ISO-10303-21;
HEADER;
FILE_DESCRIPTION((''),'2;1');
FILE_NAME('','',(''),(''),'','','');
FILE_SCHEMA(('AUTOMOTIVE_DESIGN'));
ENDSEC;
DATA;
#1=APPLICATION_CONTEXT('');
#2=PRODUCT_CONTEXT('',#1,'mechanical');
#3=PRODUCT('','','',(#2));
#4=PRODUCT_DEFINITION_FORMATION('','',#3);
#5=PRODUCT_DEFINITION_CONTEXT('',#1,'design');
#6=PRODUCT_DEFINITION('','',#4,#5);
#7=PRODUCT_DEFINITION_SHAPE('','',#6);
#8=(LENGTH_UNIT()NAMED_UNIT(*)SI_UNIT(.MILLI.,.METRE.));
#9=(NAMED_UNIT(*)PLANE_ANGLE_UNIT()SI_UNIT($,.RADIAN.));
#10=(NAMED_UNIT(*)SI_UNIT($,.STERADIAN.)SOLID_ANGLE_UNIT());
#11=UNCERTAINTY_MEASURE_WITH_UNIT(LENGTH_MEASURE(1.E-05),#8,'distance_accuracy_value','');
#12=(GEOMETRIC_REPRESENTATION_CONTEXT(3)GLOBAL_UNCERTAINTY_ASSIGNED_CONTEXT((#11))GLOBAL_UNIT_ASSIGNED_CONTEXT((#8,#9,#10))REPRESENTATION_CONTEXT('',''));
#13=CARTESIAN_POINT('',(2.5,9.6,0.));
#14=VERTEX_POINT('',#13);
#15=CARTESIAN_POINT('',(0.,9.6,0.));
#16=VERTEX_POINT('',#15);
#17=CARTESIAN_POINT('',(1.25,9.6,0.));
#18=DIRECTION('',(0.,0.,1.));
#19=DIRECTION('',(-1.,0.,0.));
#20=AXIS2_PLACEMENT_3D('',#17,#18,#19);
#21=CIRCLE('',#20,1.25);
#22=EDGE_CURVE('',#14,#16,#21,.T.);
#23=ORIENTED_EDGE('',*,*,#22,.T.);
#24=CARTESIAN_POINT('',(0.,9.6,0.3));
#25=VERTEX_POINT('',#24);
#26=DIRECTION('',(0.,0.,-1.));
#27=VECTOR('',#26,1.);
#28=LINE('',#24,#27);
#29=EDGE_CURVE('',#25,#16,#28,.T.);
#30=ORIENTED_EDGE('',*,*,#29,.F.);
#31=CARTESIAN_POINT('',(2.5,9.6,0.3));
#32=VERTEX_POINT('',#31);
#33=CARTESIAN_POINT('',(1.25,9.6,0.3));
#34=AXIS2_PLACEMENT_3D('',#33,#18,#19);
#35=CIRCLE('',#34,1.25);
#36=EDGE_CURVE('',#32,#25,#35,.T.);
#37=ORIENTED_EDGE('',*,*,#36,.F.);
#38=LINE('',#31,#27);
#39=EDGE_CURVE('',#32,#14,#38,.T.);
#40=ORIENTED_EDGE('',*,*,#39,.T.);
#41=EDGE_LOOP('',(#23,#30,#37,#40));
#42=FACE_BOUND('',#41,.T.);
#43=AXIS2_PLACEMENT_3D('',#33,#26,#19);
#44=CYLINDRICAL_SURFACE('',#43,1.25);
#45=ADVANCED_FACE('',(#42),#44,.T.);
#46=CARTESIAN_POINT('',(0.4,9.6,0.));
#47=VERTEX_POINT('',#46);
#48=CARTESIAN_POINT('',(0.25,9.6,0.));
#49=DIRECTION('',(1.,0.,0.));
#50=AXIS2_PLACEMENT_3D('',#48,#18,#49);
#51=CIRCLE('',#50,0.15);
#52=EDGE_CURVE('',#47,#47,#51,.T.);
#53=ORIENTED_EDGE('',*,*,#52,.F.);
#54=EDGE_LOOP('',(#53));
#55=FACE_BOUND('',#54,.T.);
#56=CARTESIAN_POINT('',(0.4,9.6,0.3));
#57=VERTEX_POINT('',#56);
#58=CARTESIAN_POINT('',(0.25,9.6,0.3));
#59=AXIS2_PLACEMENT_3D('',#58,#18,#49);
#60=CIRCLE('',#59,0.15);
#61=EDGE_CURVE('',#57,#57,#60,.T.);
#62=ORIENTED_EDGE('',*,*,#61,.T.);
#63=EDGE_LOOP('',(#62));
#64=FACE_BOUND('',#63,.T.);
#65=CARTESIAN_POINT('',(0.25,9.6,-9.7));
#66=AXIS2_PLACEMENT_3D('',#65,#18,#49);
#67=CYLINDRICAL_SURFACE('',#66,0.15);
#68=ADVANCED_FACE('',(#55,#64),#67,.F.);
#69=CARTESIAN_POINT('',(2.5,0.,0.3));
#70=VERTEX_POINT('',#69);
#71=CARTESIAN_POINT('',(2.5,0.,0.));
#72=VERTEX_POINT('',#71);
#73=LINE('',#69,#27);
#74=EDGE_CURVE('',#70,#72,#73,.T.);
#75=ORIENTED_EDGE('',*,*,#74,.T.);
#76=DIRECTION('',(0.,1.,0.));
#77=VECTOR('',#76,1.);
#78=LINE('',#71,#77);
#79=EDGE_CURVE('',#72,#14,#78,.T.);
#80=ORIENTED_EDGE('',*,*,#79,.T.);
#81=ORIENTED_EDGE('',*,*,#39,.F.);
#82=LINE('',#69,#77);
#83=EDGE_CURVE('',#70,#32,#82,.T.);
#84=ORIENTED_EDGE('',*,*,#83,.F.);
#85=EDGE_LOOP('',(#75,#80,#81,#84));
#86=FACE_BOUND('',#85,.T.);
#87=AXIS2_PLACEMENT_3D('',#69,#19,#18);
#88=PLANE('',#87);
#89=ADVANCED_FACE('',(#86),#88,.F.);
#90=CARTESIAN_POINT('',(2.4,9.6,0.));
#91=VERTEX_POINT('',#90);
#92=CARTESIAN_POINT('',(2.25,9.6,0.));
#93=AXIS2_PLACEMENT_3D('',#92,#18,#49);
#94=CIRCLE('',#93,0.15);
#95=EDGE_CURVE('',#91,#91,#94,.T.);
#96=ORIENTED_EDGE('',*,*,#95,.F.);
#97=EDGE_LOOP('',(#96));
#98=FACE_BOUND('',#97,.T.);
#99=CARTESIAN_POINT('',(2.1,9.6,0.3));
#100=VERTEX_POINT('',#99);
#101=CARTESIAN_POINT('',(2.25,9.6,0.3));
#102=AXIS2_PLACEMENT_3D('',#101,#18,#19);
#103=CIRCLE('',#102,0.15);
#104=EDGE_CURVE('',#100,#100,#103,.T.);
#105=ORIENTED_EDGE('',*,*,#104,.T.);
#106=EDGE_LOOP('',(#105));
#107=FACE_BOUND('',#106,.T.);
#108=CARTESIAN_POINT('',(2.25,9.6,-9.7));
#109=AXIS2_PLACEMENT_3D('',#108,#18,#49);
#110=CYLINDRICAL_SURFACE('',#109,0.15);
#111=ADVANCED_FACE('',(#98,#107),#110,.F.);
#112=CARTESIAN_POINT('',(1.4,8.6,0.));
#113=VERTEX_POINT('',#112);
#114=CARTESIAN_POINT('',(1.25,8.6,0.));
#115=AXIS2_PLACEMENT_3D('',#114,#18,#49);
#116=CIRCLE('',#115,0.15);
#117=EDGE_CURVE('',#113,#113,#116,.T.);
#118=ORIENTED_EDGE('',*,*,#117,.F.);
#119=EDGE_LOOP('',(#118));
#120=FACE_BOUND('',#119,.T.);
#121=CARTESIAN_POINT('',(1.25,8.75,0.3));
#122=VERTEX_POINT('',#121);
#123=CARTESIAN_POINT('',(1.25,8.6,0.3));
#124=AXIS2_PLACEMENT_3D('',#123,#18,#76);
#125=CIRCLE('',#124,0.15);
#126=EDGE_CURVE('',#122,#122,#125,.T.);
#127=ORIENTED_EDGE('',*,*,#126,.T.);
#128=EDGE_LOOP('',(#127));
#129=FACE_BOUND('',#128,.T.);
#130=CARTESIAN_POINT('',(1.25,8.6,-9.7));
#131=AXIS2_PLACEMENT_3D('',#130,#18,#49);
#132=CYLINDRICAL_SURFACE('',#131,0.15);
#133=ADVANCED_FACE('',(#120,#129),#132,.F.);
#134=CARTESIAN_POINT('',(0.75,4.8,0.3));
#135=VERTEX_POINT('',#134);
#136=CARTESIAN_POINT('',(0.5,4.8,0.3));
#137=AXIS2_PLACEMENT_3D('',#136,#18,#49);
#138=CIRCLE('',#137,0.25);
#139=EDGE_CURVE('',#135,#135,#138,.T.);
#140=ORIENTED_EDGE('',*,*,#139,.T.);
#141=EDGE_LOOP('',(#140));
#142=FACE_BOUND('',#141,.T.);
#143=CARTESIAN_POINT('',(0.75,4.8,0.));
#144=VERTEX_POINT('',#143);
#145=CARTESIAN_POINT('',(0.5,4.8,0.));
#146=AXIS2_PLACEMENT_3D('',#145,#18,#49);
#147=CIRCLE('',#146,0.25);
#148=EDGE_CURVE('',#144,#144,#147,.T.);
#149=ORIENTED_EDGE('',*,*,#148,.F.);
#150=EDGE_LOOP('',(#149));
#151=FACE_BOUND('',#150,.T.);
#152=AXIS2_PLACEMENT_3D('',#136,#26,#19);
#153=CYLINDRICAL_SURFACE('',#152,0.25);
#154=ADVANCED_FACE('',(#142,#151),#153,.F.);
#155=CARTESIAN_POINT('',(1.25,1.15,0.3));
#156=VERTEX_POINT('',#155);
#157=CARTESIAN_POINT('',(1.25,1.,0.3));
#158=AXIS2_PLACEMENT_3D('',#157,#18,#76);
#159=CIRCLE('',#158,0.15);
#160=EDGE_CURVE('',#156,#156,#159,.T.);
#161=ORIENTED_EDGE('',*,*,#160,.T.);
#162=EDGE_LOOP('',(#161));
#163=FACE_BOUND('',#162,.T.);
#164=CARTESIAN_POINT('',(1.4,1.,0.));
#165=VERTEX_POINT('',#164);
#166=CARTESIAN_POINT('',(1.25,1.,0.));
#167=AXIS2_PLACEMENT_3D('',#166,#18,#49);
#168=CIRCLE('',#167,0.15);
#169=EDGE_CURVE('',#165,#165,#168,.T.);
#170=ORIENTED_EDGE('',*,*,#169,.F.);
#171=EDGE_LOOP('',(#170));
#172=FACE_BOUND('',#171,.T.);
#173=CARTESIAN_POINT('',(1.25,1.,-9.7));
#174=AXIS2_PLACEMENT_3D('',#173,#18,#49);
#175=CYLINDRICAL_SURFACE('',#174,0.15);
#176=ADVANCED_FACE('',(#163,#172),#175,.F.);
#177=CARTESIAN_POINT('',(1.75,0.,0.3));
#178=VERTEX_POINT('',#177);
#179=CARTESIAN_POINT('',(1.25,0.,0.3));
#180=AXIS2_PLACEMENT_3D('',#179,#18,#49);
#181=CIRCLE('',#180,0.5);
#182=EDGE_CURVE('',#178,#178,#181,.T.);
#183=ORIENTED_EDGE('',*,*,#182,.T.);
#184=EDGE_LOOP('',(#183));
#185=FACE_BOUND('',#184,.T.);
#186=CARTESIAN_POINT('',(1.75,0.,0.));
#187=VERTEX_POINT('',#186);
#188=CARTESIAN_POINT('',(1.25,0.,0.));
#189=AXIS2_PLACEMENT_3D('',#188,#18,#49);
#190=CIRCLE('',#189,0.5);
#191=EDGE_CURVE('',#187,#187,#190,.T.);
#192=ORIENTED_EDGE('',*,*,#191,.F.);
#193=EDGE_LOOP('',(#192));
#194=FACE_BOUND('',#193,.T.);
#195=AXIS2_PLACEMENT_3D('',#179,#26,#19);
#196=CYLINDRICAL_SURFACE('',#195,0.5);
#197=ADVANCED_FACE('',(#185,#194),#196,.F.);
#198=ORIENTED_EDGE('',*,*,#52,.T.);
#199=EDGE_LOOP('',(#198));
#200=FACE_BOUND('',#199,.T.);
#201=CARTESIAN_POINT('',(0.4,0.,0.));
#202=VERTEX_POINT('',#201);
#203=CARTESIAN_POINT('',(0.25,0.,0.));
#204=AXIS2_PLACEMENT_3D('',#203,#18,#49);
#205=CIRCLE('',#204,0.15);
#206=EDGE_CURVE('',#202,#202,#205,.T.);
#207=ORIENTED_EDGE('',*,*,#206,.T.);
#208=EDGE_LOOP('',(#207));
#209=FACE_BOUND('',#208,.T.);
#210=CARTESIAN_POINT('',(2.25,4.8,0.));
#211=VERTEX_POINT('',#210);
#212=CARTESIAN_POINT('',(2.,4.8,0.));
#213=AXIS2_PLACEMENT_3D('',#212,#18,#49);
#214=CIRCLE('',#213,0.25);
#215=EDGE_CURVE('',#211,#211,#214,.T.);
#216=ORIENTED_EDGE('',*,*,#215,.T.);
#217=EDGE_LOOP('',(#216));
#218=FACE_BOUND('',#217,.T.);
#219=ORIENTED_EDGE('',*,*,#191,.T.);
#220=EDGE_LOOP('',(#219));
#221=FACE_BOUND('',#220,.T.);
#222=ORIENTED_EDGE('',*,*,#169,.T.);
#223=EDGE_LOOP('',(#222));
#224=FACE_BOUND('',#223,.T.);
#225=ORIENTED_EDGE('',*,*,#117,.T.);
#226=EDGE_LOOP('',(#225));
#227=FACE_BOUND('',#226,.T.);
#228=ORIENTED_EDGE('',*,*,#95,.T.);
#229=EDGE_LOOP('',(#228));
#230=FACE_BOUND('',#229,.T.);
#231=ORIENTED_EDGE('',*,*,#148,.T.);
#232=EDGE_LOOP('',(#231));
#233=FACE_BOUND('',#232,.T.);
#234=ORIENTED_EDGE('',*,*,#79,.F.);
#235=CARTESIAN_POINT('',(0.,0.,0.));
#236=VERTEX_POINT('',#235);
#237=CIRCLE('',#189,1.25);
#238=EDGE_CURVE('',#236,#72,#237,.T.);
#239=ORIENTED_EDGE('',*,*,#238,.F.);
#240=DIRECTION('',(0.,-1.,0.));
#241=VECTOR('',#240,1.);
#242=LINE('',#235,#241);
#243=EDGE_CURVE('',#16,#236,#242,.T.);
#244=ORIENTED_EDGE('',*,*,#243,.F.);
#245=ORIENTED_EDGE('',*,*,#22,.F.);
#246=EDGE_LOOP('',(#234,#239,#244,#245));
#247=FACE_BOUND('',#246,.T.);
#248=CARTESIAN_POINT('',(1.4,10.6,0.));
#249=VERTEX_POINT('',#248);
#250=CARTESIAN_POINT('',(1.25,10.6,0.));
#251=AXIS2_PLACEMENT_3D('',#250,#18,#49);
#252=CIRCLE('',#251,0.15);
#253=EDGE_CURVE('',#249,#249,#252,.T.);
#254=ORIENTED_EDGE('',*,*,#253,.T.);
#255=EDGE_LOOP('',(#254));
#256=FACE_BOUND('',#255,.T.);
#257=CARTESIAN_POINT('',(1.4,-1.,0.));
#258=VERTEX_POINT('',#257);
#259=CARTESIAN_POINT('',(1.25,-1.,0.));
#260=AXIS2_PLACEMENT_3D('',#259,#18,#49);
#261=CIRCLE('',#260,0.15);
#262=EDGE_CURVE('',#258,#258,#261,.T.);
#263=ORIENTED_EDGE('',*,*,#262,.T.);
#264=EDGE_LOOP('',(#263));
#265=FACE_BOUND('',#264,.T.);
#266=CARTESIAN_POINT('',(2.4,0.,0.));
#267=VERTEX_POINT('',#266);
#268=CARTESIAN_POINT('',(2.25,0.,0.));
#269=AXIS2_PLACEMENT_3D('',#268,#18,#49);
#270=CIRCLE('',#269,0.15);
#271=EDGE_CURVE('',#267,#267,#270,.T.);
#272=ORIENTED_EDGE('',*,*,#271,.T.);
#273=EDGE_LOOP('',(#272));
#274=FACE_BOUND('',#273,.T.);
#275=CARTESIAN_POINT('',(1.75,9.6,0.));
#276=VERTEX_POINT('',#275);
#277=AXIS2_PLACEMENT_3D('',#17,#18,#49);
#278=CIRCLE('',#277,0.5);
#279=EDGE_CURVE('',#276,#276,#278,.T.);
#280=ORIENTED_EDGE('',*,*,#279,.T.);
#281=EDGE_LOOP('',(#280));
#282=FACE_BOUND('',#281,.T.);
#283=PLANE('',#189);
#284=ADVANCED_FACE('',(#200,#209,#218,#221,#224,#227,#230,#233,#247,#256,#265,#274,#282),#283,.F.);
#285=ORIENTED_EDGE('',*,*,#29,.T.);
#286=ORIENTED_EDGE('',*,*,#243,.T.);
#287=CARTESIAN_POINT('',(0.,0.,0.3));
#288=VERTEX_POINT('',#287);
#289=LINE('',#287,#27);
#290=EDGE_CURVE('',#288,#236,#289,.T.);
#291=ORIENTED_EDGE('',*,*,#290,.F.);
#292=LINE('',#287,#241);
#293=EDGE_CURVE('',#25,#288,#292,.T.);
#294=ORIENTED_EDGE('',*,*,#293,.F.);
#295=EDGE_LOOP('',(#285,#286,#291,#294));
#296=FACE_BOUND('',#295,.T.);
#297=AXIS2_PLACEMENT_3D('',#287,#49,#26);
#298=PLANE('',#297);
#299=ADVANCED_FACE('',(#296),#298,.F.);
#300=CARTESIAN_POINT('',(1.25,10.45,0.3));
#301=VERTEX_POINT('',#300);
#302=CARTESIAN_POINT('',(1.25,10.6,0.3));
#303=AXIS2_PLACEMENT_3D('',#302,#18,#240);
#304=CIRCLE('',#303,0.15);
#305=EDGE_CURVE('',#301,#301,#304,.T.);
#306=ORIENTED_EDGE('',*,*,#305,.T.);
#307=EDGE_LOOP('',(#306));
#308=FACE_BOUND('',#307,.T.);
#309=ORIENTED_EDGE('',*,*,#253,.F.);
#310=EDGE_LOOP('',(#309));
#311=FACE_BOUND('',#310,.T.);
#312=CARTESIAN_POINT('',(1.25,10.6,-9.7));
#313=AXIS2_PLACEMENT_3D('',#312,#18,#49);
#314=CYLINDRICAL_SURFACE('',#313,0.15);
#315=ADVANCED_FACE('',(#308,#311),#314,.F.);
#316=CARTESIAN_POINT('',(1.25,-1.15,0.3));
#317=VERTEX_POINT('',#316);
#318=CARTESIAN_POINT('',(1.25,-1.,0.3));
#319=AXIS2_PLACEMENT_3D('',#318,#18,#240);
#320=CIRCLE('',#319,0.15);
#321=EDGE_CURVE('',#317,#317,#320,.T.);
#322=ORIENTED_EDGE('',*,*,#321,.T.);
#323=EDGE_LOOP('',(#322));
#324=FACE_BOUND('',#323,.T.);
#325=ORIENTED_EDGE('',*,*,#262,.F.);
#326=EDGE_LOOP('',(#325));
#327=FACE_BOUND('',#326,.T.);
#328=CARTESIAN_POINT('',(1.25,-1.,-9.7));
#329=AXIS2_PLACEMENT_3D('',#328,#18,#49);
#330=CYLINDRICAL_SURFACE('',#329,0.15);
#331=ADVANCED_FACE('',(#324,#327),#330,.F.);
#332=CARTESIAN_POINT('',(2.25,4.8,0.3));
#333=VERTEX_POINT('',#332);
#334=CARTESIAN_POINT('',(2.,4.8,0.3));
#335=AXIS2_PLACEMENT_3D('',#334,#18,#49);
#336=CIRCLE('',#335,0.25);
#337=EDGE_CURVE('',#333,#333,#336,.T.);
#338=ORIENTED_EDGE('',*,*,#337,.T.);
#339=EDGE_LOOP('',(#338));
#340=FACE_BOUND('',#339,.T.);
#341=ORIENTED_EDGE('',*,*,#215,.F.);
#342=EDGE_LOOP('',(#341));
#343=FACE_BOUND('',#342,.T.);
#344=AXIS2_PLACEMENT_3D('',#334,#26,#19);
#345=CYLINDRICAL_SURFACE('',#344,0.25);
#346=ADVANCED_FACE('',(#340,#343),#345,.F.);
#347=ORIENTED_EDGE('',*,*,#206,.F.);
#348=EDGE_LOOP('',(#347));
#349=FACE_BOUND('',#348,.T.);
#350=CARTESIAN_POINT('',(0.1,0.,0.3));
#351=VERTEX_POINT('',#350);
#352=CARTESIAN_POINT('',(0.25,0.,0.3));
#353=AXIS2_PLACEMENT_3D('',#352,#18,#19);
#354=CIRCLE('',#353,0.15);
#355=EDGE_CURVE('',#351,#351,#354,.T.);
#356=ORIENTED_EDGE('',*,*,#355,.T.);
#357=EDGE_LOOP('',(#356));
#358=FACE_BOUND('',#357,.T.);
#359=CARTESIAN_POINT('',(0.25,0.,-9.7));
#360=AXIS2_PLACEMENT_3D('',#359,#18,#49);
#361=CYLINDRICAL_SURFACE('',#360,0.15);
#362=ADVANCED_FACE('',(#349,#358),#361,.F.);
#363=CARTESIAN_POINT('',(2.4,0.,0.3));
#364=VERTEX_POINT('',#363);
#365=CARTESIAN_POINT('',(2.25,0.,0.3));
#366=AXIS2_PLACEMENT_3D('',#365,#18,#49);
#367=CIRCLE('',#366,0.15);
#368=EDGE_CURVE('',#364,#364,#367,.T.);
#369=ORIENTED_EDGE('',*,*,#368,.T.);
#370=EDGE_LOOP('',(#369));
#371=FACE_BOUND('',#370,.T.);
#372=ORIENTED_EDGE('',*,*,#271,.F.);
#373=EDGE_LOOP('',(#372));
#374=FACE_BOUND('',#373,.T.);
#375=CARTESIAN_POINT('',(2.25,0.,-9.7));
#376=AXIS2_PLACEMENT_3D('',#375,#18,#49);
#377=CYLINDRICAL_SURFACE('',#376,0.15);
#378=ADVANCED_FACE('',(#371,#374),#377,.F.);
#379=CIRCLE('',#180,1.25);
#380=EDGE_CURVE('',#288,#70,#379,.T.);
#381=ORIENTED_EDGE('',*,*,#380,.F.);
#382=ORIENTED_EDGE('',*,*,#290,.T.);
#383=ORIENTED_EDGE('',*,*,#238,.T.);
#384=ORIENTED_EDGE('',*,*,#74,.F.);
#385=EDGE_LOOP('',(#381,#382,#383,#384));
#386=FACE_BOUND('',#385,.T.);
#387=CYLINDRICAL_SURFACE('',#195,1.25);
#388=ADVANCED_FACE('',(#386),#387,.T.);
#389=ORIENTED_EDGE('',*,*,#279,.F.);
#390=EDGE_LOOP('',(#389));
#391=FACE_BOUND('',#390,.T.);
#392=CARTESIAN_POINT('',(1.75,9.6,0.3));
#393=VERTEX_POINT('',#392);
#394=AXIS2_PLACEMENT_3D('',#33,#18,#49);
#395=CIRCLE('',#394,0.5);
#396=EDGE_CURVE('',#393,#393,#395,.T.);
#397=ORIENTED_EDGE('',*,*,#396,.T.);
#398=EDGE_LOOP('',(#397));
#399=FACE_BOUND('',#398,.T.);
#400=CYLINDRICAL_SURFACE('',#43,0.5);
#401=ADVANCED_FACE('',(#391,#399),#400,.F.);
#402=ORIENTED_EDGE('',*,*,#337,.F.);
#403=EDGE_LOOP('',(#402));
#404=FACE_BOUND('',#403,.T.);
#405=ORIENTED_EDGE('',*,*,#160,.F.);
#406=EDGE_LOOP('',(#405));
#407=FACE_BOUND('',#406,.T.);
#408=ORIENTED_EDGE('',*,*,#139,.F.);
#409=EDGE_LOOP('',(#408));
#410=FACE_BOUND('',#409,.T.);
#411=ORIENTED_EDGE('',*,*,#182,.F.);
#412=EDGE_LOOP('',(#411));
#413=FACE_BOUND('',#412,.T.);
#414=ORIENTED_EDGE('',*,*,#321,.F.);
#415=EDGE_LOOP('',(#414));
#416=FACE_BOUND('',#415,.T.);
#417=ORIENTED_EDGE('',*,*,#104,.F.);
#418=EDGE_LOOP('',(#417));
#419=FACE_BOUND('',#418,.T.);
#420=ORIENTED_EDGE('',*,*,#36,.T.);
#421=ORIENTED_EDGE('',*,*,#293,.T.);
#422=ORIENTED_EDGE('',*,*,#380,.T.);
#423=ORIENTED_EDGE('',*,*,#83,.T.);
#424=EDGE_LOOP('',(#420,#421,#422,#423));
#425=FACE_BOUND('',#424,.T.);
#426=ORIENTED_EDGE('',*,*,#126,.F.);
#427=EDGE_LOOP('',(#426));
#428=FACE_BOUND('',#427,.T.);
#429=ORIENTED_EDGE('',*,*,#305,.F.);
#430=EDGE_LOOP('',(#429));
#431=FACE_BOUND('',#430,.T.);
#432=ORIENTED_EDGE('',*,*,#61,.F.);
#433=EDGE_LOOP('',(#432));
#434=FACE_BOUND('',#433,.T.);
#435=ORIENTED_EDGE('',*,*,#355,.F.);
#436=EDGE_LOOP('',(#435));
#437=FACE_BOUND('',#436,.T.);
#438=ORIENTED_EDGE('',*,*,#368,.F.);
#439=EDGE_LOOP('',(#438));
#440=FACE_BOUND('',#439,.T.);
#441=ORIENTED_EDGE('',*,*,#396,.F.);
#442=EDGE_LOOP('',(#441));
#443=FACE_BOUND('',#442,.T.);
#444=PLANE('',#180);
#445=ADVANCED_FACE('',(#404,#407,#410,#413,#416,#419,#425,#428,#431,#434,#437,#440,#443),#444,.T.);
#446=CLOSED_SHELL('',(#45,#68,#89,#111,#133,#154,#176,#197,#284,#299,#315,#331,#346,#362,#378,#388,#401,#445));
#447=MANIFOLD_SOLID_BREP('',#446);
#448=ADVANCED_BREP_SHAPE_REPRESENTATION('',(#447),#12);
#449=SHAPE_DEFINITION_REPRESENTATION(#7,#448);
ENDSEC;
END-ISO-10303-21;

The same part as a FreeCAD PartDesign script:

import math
import FreeCAD as App
import Part
import Sketcher

V = App.Vector
Q = App.Units.Quantity

doc = App.newDocument("Part")
body = doc.addObject("PartDesign::Body", "Body")

sketch1 = body.newObject("Sketcher::SketchObject", "Sketch")
sketch1.AttachmentSupport = (doc.getObject("XY_Plane"), [""])
sketch1.MapMode = "FlatFace"
sketch1.addGeometry(Part.LineSegment(V(0, 9.6, 0), V(0, 0, 0)), False)
sketch1.addGeometry(Part.ArcOfCircle(Part.Circle(V(1.25, 0, 0), V(0, 0, 1), 1.25), math.radians(180), math.radians(360)), False)
sketch1.addGeometry(Part.LineSegment(V(2.5, 0, 0), V(2.5, 9.6, 0)), False)
sketch1.addGeometry(Part.ArcOfCircle(Part.Circle(V(1.25, 9.6, 0), V(0, 0, 1), 1.25), math.radians(0), math.radians(180)), False)
sketch1.addGeometry(Part.Circle(V(1.25, 0, 0), V(0, 0, 1), 0.5), False)
sketch1.addGeometry(Part.Circle(V(2, 4.8, 0), V(0, 0, 1), 0.25), False)
sketch1.addGeometry(Part.Circle(V(0.5, 4.8, 0), V(0, 0, 1), 0.25), False)
sketch1.addGeometry(Part.Circle(V(1.25, 9.6, 0), V(0, 0, 1), 0.5), False)
sketch1.addConstraint(Sketcher.Constraint("Tangent", 0, 2, 1, 1))
sketch1.addConstraint(Sketcher.Constraint("Tangent", 1, 2, 2, 1))
sketch1.addConstraint(Sketcher.Constraint("Tangent", 2, 2, 3, 1))
sketch1.addConstraint(Sketcher.Constraint("Tangent", 3, 2, 0, 1))
sketch1.addConstraint(Sketcher.Constraint("Vertical", 0))
sketch1.addConstraint(Sketcher.Constraint("Vertical", 2))
sketch1.addConstraint(Sketcher.Constraint("Coincident", 0, 2, -1, 1))
sketch1.addConstraint(Sketcher.Constraint("Coincident", 4, 3, 1, 3))
sketch1.addConstraint(Sketcher.Constraint("Coincident", 7, 3, 3, 3))
sketch1.addConstraint(Sketcher.Constraint("Equal", 5, 6))
sketch1.addConstraint(Sketcher.Constraint("Equal", 4, 7))
sketch1.addConstraint(Sketcher.Constraint("Horizontal", 5, 3, 6, 3))
sketch1.addConstraint(Sketcher.Constraint("Diameter", 4, Q("1 mm")))
sketch1.addConstraint(Sketcher.Constraint("Diameter", 5, Q("0.5 mm")))
sketch1.addConstraint(Sketcher.Constraint("Radius", 1, Q("1.25 mm")))
sketch1.addConstraint(Sketcher.Constraint("DistanceY", 0, 2, 0, 1, Q("9.6 mm")))
sketch1.addConstraint(Sketcher.Constraint("DistanceX", -1, 1, 5, 3, Q("2 mm")))
sketch1.addConstraint(Sketcher.Constraint("DistanceX", 6, 3, 1, 2, Q("2 mm")))
sketch1.addConstraint(Sketcher.Constraint("DistanceY", -1, 1, 5, 3, Q("4.8 mm")))
pad1 = body.newObject("PartDesign::Pad", "Pad")
pad1.Profile = sketch1
pad1.Length = 0.3

sketch2 = body.newObject("Sketcher::SketchObject", "Sketch001")
sketch2.AttachmentSupport = (doc.getObject("XY_Plane"), [""])
sketch2.MapMode = "FlatFace"
sketch2.AttachmentOffset = App.Placement(V(0, 0, 0.3), App.Rotation())
sketch2.addGeometry(Part.Circle(V(0.25, 9.6, 0), V(0, 0, 1), 0.15), False)
sketch2.addConstraint(Sketcher.Constraint("Diameter", 0, Q("0.3 mm")))
sketch2.addConstraint(Sketcher.Constraint("DistanceY", -1, 1, 0, 3, Q("9.6 mm")))
sketch2.addConstraint(Sketcher.Constraint("DistanceX", -1, 1, 0, 3, Q("0.25 mm")))
pocket1 = body.newObject("PartDesign::Pocket", "Pocket")
pocket1.Profile = sketch2
pocket1.Length = 10
doc.recompute()

datumline = body.newObject("PartDesign::Line", "DatumLine")
datumline.Placement = App.Placement(V(1.25, 9.6, 0), App.Rotation(V(0, 0, 1), V(0, 0, 1)))
polarpattern = body.newObject("PartDesign::PolarPattern", "PolarPattern")
polarpattern.Originals = [pocket1]
polarpattern.Axis = (datumline, [""])
polarpattern.Angle = 360
polarpattern.Occurrences = 4
body.Tip = polarpattern

sketch3 = body.newObject("Sketcher::SketchObject", "Sketch002")
sketch3.AttachmentSupport = (doc.getObject("XY_Plane"), [""])
sketch3.MapMode = "FlatFace"
sketch3.AttachmentOffset = App.Placement(V(0, 0, 0.3), App.Rotation())
sketch3.addGeometry(Part.Circle(V(2.25, 0, 0), V(0, 0, 1), 0.15), False)
sketch3.addConstraint(Sketcher.Constraint("PointOnObject", 0, 3, -1))
sketch3.addConstraint(Sketcher.Constraint("Diameter", 0, Q("0.3 mm")))
sketch3.addConstraint(Sketcher.Constraint("DistanceX", -1, 1, 0, 3, Q("2.25 mm")))
pocket2 = body.newObject("PartDesign::Pocket", "Pocket001")
pocket2.Profile = sketch3
pocket2.Length = 10
doc.recompute()

datumline2 = body.newObject("PartDesign::Line", "DatumLine001")
datumline2.Placement = App.Placement(V(1.25, 0, 0), App.Rotation(V(0, 0, 1), V(0, 0, 1)))
polarpattern2 = body.newObject("PartDesign::PolarPattern", "PolarPattern001")
polarpattern2.Originals = [pocket2]
polarpattern2.Axis = (datumline2, [""])
polarpattern2.Angle = 360
polarpattern2.Occurrences = 4
body.Tip = polarpattern2

doc.recompute()
